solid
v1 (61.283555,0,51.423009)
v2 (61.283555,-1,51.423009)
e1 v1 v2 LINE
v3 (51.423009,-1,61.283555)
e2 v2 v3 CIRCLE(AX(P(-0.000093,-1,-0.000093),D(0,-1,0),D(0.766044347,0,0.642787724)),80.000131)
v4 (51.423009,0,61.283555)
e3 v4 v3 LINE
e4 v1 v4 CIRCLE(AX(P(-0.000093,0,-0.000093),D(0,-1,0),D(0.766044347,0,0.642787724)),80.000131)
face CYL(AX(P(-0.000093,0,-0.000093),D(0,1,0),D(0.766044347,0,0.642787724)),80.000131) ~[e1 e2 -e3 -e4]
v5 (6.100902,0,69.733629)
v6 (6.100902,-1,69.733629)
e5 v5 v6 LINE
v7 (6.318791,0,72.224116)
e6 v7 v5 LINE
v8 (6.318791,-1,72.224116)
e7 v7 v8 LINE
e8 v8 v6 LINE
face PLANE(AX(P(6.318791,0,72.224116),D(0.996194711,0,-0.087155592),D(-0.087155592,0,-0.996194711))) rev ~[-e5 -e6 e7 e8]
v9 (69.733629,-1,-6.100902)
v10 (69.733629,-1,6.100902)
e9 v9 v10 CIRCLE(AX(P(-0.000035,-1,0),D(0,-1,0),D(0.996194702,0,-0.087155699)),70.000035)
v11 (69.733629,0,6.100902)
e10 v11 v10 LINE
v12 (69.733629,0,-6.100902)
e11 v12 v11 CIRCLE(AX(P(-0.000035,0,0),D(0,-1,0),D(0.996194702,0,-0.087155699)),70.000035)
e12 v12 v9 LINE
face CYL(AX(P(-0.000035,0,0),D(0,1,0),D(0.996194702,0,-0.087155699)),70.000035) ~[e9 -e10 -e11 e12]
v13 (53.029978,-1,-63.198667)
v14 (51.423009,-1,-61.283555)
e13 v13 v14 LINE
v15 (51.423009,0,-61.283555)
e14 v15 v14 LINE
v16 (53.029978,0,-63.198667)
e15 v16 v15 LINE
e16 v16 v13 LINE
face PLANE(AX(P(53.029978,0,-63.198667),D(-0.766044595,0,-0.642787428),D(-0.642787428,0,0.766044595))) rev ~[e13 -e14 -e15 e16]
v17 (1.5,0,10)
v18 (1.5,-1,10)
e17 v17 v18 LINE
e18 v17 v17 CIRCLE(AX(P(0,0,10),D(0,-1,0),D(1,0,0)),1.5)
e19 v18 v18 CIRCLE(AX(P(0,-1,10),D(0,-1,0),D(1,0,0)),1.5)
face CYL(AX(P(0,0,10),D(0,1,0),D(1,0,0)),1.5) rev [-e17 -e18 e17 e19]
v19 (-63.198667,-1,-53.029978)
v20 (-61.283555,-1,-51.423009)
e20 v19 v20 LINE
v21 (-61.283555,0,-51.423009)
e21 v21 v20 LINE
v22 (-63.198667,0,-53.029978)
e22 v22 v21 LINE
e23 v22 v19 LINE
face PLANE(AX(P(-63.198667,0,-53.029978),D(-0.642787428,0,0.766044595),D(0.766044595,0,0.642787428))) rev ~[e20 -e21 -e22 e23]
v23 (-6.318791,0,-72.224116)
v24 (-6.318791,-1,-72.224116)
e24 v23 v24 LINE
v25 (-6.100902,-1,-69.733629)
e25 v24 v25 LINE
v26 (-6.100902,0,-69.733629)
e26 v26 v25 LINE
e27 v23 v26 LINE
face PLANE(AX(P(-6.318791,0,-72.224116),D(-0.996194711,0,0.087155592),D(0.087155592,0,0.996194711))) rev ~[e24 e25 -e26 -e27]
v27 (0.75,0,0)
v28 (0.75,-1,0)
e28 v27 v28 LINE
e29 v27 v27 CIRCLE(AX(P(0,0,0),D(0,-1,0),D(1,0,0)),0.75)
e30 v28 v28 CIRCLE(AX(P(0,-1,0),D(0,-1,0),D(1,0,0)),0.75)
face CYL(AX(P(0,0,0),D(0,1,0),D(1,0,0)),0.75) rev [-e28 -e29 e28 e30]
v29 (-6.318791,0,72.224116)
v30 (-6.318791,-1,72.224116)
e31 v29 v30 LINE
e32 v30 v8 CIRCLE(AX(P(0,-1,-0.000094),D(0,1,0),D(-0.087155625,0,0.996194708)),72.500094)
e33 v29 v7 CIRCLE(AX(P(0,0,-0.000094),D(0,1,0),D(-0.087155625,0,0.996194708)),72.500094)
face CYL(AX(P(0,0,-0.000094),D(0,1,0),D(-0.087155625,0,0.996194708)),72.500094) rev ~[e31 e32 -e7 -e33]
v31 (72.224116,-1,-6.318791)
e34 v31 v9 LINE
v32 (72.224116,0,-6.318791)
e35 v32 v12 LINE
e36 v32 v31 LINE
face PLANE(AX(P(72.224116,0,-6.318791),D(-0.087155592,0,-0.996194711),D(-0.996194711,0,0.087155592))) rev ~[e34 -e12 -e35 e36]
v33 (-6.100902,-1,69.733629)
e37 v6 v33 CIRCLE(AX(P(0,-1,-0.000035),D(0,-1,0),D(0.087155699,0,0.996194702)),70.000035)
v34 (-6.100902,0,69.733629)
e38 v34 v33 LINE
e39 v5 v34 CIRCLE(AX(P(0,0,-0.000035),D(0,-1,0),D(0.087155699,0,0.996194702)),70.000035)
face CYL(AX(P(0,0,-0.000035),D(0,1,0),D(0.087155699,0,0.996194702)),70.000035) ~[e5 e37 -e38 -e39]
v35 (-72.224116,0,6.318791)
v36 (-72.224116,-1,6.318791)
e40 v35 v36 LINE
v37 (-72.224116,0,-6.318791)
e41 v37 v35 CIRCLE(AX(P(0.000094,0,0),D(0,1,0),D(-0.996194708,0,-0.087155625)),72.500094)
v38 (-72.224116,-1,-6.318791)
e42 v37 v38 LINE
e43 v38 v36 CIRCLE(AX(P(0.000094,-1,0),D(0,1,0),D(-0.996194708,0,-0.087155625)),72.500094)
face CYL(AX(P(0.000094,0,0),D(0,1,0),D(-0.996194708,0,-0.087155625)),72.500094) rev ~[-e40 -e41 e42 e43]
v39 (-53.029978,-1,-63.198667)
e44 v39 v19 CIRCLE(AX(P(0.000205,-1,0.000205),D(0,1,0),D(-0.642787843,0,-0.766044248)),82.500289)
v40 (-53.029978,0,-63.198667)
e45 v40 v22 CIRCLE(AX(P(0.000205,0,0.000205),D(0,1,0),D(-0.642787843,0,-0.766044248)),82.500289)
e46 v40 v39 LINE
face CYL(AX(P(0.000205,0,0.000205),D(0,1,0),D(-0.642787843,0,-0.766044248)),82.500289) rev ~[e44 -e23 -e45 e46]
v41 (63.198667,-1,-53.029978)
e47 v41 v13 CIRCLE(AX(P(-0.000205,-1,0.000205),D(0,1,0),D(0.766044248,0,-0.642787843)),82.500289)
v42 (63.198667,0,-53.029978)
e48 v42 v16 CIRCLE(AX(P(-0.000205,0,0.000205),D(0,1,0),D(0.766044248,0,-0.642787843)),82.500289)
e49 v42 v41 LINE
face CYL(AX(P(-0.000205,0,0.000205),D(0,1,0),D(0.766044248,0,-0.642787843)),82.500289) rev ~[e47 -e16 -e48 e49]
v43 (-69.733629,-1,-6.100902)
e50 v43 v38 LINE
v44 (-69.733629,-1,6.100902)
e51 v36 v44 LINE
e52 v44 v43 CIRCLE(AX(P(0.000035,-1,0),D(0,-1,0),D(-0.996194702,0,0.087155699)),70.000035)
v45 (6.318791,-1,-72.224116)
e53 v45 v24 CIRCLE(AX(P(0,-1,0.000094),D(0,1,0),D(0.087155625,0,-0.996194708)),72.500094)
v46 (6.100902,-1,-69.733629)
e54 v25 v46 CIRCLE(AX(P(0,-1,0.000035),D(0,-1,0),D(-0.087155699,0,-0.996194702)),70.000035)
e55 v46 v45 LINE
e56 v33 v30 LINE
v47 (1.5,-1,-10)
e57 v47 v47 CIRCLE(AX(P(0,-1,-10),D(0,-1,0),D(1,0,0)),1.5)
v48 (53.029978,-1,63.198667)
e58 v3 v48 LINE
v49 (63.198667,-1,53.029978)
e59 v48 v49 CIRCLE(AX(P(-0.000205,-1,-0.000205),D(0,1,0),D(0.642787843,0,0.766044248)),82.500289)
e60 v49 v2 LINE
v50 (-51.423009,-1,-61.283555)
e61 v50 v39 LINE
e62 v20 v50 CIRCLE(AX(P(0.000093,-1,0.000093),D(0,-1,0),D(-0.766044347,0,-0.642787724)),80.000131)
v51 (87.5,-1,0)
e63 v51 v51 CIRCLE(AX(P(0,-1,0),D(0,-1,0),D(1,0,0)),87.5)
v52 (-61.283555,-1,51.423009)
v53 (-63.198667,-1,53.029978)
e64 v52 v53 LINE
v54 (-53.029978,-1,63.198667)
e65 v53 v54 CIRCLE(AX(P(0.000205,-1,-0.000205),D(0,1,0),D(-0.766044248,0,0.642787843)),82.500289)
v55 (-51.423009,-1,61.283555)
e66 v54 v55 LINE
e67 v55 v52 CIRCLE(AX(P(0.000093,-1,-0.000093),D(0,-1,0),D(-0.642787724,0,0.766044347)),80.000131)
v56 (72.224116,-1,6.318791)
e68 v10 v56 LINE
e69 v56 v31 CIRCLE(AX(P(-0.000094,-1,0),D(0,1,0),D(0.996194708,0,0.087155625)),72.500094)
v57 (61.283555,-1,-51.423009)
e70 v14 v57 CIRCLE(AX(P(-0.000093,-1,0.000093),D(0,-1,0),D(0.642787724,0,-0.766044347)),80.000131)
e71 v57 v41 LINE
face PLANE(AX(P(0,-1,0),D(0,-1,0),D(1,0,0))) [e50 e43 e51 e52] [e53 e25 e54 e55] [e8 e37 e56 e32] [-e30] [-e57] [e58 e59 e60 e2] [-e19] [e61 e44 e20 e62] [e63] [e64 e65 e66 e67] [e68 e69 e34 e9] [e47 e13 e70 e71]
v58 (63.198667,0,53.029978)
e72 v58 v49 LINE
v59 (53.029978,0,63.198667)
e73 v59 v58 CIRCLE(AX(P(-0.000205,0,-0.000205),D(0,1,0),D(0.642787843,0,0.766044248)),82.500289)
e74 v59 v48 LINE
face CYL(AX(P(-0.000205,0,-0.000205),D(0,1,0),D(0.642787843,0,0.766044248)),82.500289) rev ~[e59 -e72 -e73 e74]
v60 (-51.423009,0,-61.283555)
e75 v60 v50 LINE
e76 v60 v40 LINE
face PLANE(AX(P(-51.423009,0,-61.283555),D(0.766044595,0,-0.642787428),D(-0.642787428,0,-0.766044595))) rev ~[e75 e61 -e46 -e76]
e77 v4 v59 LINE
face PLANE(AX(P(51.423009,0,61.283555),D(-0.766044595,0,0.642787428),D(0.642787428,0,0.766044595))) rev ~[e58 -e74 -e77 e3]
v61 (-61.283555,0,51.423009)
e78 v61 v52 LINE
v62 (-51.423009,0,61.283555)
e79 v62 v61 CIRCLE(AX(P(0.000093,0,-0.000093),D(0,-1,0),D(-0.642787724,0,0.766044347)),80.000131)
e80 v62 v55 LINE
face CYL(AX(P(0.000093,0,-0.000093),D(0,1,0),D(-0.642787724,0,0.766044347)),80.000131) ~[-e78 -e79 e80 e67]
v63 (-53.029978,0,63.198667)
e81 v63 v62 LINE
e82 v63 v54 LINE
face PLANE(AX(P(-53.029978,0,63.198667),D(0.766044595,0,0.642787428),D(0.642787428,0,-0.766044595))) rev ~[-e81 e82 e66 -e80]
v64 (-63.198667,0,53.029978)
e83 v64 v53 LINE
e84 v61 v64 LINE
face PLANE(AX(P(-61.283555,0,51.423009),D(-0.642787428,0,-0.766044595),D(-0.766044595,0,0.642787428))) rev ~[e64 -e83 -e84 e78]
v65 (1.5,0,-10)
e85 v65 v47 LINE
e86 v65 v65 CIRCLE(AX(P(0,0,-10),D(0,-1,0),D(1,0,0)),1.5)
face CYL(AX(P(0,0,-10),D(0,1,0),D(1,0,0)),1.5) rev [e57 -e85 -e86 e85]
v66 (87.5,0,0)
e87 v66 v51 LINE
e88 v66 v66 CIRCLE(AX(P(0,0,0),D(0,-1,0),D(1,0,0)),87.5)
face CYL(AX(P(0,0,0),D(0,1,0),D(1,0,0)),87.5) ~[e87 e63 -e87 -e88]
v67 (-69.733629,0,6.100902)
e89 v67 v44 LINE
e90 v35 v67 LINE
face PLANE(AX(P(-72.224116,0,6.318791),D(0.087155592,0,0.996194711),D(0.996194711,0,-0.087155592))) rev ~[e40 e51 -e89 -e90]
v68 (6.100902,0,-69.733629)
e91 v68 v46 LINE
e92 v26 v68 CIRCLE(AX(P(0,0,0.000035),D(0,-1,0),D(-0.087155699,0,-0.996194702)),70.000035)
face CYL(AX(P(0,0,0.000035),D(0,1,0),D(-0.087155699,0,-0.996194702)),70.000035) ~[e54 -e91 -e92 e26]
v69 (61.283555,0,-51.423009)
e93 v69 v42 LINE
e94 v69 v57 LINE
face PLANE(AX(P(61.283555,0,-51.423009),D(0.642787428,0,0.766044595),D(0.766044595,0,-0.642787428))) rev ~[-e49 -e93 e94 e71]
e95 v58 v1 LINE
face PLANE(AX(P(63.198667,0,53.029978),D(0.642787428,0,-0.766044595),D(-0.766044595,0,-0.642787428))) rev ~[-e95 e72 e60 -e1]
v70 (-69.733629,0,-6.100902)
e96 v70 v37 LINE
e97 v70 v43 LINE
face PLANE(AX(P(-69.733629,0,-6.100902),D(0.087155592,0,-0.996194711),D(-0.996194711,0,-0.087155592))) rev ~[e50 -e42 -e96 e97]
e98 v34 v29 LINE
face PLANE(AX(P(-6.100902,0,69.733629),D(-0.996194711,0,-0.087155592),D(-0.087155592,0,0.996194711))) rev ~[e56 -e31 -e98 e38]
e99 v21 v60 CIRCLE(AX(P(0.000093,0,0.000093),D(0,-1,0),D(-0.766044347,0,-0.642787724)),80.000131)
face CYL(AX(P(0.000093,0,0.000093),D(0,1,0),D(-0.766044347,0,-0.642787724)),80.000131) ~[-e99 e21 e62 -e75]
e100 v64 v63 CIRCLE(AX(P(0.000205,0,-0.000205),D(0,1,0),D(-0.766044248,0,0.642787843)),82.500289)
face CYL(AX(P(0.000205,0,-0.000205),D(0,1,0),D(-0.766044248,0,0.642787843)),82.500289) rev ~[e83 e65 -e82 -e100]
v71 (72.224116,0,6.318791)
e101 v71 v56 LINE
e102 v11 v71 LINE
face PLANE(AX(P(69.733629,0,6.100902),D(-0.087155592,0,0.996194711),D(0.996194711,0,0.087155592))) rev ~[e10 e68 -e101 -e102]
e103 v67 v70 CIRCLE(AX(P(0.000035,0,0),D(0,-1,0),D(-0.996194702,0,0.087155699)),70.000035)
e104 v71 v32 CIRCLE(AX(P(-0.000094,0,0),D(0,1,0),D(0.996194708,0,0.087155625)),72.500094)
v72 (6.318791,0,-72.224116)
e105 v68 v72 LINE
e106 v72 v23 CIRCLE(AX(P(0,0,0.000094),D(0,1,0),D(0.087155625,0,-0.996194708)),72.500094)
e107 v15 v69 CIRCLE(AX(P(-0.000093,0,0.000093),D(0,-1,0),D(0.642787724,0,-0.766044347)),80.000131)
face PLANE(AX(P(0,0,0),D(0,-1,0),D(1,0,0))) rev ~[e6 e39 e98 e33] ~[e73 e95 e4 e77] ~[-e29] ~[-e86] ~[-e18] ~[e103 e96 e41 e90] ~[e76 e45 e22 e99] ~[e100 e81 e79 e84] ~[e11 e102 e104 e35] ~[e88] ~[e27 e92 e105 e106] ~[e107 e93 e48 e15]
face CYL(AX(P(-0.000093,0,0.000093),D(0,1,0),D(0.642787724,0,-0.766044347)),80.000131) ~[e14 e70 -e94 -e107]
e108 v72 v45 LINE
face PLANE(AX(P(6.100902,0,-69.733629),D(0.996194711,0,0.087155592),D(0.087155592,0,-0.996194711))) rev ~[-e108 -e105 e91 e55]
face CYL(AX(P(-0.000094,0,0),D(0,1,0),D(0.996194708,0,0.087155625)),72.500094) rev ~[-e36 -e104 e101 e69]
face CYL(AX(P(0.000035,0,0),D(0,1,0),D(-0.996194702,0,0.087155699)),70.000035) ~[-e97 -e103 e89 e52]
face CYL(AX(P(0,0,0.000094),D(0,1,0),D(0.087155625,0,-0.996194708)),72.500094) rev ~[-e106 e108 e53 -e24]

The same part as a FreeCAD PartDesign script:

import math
import FreeCAD as App
import Part
import Sketcher
from FreeCAD import Vector
Q = App.Units.Quantity

doc = App.newDocument("Part")
body = doc.addObject("PartDesign::Body", "Body")

sketch1 = doc.addObject("Sketcher::SketchObject", "Sketch")
body.addObject(sketch1)
sketch1.AttachmentSupport = (doc.XZ_Plane, [""])
sketch1.MapMode = "FlatFace"
sketch1.addGeometry(Part.Circle(Vector(0, 0, 0), Vector(0, 0, 1), 87.5), False)
sketch1.addGeometry(Part.LineSegment(Vector(-51.423009, -61.283555, 0), Vector(-53.029978, -63.198667, 0)), False)
sketch1.addGeometry(Part.ArcOfCircle(Part.Circle(Vector(0.000205, 0.000205, 0), Vector(0, 0, 1), 82.500289), math.radians(-139.999983), math.radians(-130.000017)), False)
sketch1.addGeometry(Part.LineSegment(Vector(-63.198667, -53.029978, 0), Vector(-61.283555, -51.423009, 0)), False)
sketch1.addGeometry(Part.ArcOfCircle(Part.Circle(Vector(0.000093, 0.000093, 0), Vector(0, 0, 1), 80.000131), math.radians(-139.999991), math.radians(-130.000009)), False)
sketch1.addGeometry(Part.ArcOfCircle(Part.Circle(Vector(0, 0.000094, 0), Vector(0, 0, 1), 72.500094), math.radians(-94.999993), math.radians(-85.000007)), False)
sketch1.addGeometry(Part.LineSegment(Vector(-6.318791, -72.224116, 0), Vector(-6.100902, -69.733629, 0)), False)
sketch1.addGeometry(Part.ArcOfCircle(Part.Circle(Vector(0, 0.000035, 0), Vector(0, 0, 1), 70.000035), math.radians(-94.999997), math.radians(-85.000003)), False)
sketch1.addGeometry(Part.LineSegment(Vector(6.100902, -69.733629, 0), Vector(6.318791, -72.224116, 0)), False)
sketch1.addGeometry(Part.ArcOfCircle(Part.Circle(Vector(-0.000205, 0.000205, 0), Vector(0, 0, 1), 82.500289), math.radians(-49.999983), math.radians(-40.000017)), False)
sketch1.addGeometry(Part.LineSegment(Vector(53.029978, -63.198667, 0), Vector(51.423009, -61.283555, 0)), False)
sketch1.addGeometry(Part.ArcOfCircle(Part.Circle(Vector(-0.000093, 0.000093, 0), Vector(0, 0, 1), 80.000131), math.radians(-49.999991), math.radians(-40.000009)), False)
sketch1.addGeometry(Part.LineSegment(Vector(61.283555, -51.423009, 0), Vector(63.198667, -53.029978, 0)), False)
sketch1.addGeometry(Part.Circle(Vector(0, -10, 0), Vector(0, 0, 1), 1.5), False)
sketch1.addGeometry(Part.LineSegment(Vector(-69.733629, -6.100902, 0), Vector(-72.224116, -6.318791, 0)), False)
sketch1.addGeometry(Part.ArcOfCircle(Part.Circle(Vector(0.000094, 0, 0), Vector(0, 0, 1), 72.500094), math.radians(175.000007), math.radians(184.999993)), False)
sketch1.addGeometry(Part.LineSegment(Vector(-72.224116, 6.318791, 0), Vector(-69.733629, 6.100902, 0)), False)
sketch1.addGeometry(Part.ArcOfCircle(Part.Circle(Vector(0.000035, 0, 0), Vector(0, 0, 1), 70.000035), math.radians(175.000003), math.radians(184.999997)), False)
sketch1.addGeometry(Part.LineSegment(Vector(-61.283555, 51.423009, 0), Vector(-63.198667, 53.029978, 0)), False)
sketch1.addGeometry(Part.ArcOfCircle(Part.Circle(Vector(0.000205, -0.000205, 0), Vector(0, 0, 1), 82.500289), math.radians(130.000017), math.radians(139.999983)), False)
sketch1.addGeometry(Part.LineSegment(Vector(-53.029978, 63.198667, 0), Vector(-51.423009, 61.283555, 0)), False)
sketch1.addGeometry(Part.ArcOfCircle(Part.Circle(Vector(0.000093, -0.000093, 0), Vector(0, 0, 1), 80.000131), math.radians(130.000009), math.radians(139.999991)), False)
sketch1.addGeometry(Part.Circle(Vector(0, 0, 0), Vector(0, 0, 1), 0.75), False)
sketch1.addGeometry(Part.Circle(Vector(0, 10, 0), Vector(0, 0, 1), 1.5), False)
sketch1.addGeometry(Part.LineSegment(Vector(69.733629, 6.100902, 0), Vector(72.224116, 6.318791, 0)), False)
sketch1.addGeometry(Part.ArcOfCircle(Part.Circle(Vector(-0.000094, 0, 0), Vector(0, 0, 1), 72.500094), math.radians(-4.999993), math.radians(4.999993)), False)
sketch1.addGeometry(Part.LineSegment(Vector(72.224116, -6.318791, 0), Vector(69.733629, -6.100902, 0)), False)
sketch1.addGeometry(Part.ArcOfCircle(Part.Circle(Vector(-0.000035, 0, 0), Vector(0, 0, 1), 70.000035), math.radians(-4.999997), math.radians(4.999997)), False)
sketch1.addGeometry(Part.LineSegment(Vector(-6.100902, 69.733629, 0), Vector(-6.318791, 72.224116, 0)), False)
sketch1.addGeometry(Part.ArcOfCircle(Part.Circle(Vector(0, -0.000094, 0), Vector(0, 0, 1), 72.500094), math.radians(85.000007), math.radians(94.999993)), False)
sketch1.addGeometry(Part.LineSegment(Vector(6.318791, 72.224116, 0), Vector(6.100902, 69.733629, 0)), False)
sketch1.addGeometry(Part.ArcOfCircle(Part.Circle(Vector(0, -0.000035, 0), Vector(0, 0, 1), 70.000035), math.radians(85.000003), math.radians(94.999997)), False)
sketch1.addGeometry(Part.LineSegment(Vector(51.423009, 61.283555, 0), Vector(53.029978, 63.198667, 0)), False)
sketch1.addGeometry(Part.ArcOfCircle(Part.Circle(Vector(-0.000205, -0.000205, 0), Vector(0, 0, 1), 82.500289), math.radians(40.000017), math.radians(49.999983)), False)
sketch1.addGeometry(Part.LineSegment(Vector(63.198667, 53.029978, 0), Vector(61.283555, 51.423009, 0)), False)
sketch1.addGeometry(Part.ArcOfCircle(Part.Circle(Vector(-0.000093, -0.000093, 0), Vector(0, 0, 1), 80.000131), math.radians(40.000009), math.radians(49.999991)), False)
sketch1.addConstraint(Sketcher.Constraint("Coincident", 1, 2, 2, 2))
sketch1.addConstraint(Sketcher.Constraint("Coincident", 2, 1, 3, 1))
sketch1.addConstraint(Sketcher.Constraint("Coincident", 3, 2, 4, 1))
sketch1.addConstraint(Sketcher.Constraint("Coincident", 4, 2, 1, 1))
sketch1.addConstraint(Sketcher.Constraint("Coincident", 5, 1, 6, 1))
sketch1.addConstraint(Sketcher.Constraint("Coincident", 6, 2, 7, 1))
sketch1.addConstraint(Sketcher.Constraint("Coincident", 7, 2, 8, 1))
sketch1.addConstraint(Sketcher.Constraint("Coincident", 8, 2, 5, 2))
sketch1.addConstraint(Sketcher.Constraint("Coincident", 9, 1, 10, 1))
sketch1.addConstraint(Sketcher.Constraint("Coincident", 10, 2, 11, 1))
sketch1.addConstraint(Sketcher.Constraint("Coincident", 11, 2, 12, 1))
sketch1.addConstraint(Sketcher.Constraint("Coincident", 12, 2, 9, 2))
sketch1.addConstraint(Sketcher.Constraint("Coincident", 14, 2, 15, 2))
sketch1.addConstraint(Sketcher.Constraint("Coincident", 15, 1, 16, 1))
sketch1.addConstraint(Sketcher.Constraint("Coincident", 16, 2, 17, 1))
sketch1.addConstraint(Sketcher.Constraint("Coincident", 17, 2, 14, 1))
sketch1.addConstraint(Sketcher.Constraint("Coincident", 18, 2, 19, 2))
sketch1.addConstraint(Sketcher.Constraint("Coincident", 19, 1, 20, 1))
sketch1.addConstraint(Sketcher.Constraint("Coincident", 20, 2, 21, 1))
sketch1.addConstraint(Sketcher.Constraint("Coincident", 21, 2, 18, 1))
sketch1.addConstraint(Sketcher.Constraint("Coincident", 24, 2, 25, 2))
sketch1.addConstraint(Sketcher.Constraint("Coincident", 25, 1, 26, 1))
sketch1.addConstraint(Sketcher.Constraint("Coincident", 26, 2, 27, 1))
sketch1.addConstraint(Sketcher.Constraint("Coincident", 27, 2, 24, 1))
sketch1.addConstraint(Sketcher.Constraint("Coincident", 28, 2, 29, 2))
sketch1.addConstraint(Sketcher.Constraint("Coincident", 29, 1, 30, 1))
sketch1.addConstraint(Sketcher.Constraint("Coincident", 30, 2, 31, 1))
sketch1.addConstraint(Sketcher.Constraint("Coincident", 31, 2, 28, 1))
sketch1.addConstraint(Sketcher.Constraint("Coincident", 32, 2, 33, 2))
sketch1.addConstraint(Sketcher.Constraint("Coincident", 33, 1, 34, 1))
sketch1.addConstraint(Sketcher.Constraint("Coincident", 34, 2, 35, 1))
sketch1.addConstraint(Sketcher.Constraint("Coincident", 35, 2, 32, 1))
sketch1.addConstraint(Sketcher.Constraint("Coincident", 0, 3, -1, 1))
sketch1.addConstraint(Sketcher.Constraint("Coincident", 22, 3, -1, 1))
sketch1.addConstraint(Sketcher.Constraint("Equal", 2, 9))
sketch1.addConstraint(Sketcher.Constraint("Equal", 4, 11))
sketch1.addConstraint(Sketcher.Constraint("Equal", 5, 15))
sketch1.addConstraint(Sketcher.Constraint("Equal", 7, 17))
sketch1.addConstraint(Sketcher.Constraint("Equal", 9, 19))
sketch1.addConstraint(Sketcher.Constraint("Equal", 11, 21))
sketch1.addConstraint(Sketcher.Constraint("Equal", 13, 23))
sketch1.addConstraint(Sketcher.Constraint("Equal", 15, 25))
sketch1.addConstraint(Sketcher.Constraint("Equal", 17, 27))
sketch1.addConstraint(Sketcher.Constraint("Equal", 25, 29))
sketch1.addConstraint(Sketcher.Constraint("Equal", 27, 31))
sketch1.addConstraint(Sketcher.Constraint("Equal", 19, 33))
sketch1.addConstraint(Sketcher.Constraint("Equal", 21, 35))
sketch1.addConstraint(Sketcher.Constraint("Symmetric", 9, 3, 19, 3, -1, 1))
sketch1.addConstraint(Sketcher.Constraint("Symmetric", 11, 3, 21, 3, -1, 1))
sketch1.addConstraint(Sketcher.Constraint("Symmetric", 13, 3, 23, 3, -1, 1))
sketch1.addConstraint(Sketcher.Constraint("Symmetric", 15, 3, 25, 3, -1, 1))
sketch1.addConstraint(Sketcher.Constraint("Symmetric", 17, 3, 27, 3, -1, 1))
sketch1.addConstraint(Sketcher.Constraint("Symmetric", 5, 3, 29, 3, -1, 1))
sketch1.addConstraint(Sketcher.Constraint("Symmetric", 7, 3, 31, 3, -1, 1))
sketch1.addConstraint(Sketcher.Constraint("Symmetric", 2, 3, 33, 3, -1, 1))
sketch1.addConstraint(Sketcher.Constraint("Symmetric", 4, 3, 35, 3, -1, 1))
sketch1.addConstraint(Sketcher.Constraint("Symmetric", 2, 3, 9, 3, -2))
sketch1.addConstraint(Sketcher.Constraint("Symmetric", 4, 3, 11, 3, -2))
sketch1.addConstraint(Sketcher.Constraint("Symmetric", 6, 2, 7, 2, -2))
sketch1.addConstraint(Sketcher.Constraint("Symmetric", 5, 1, 8, 2, -2))
sketch1.addConstraint(Sketcher.Constraint("Symmetric", 15, 1, 24, 2, -2))
sketch1.addConstraint(Sketcher.Constraint("Symmetric", 17, 2, 26, 2, -2))
sketch1.addConstraint(Sketcher.Constraint("PointOnObject", 13, 3, -2))
sketch1.addConstraint(Sketcher.Constraint("Perpendicular", 3, 10))
sketch1.addConstraint(Sketcher.Constraint("Perpendicular", 1, 12))
sketch1.addConstraint(Sketcher.Constraint("Perpendicular", 8, 14))
sketch1.addConstraint(Sketcher.Constraint("Perpendicular", 6, 16))
sketch1.addConstraint(Sketcher.Constraint("Parallel", 12, 18))
sketch1.addConstraint(Sketcher.Constraint("Parallel", 10, 20))
sketch1.addConstraint(Sketcher.Constraint("Parallel", 14, 24))
sketch1.addConstraint(Sketcher.Constraint("Parallel", 16, 26))
sketch1.addConstraint(Sketcher.Constraint("Perpendicular", 24, 28))
sketch1.addConstraint(Sketcher.Constraint("Perpendicular", 26, 30))
sketch1.addConstraint(Sketcher.Constraint("Perpendicular", 18, 32))
sketch1.addConstraint(Sketcher.Constraint("Perpendicular", 20, 34))
sketch1.addConstraint(Sketcher.Constraint("Horizontal", 4, 3, 5, 3))
sketch1.addConstraint(Sketcher.Constraint("Horizontal", 1, 2, 9, 1))
sketch1.addConstraint(Sketcher.Constraint("Horizontal", 4, 2, 10, 2))
sketch1.addConstraint(Sketcher.Constraint("Horizontal", 3, 2, 11, 2))
sketch1.addConstraint(Sketcher.Constraint("Horizontal", 28, 2, 29, 1))
sketch1.addConstraint(Sketcher.Constraint("Horizontal", 19, 1, 32, 2))
sketch1.addConstraint(Sketcher.Constraint("Horizontal", 18, 2, 33, 1))
sketch1.addConstraint(Sketcher.Constraint("Vertical", 4, 3, 15, 3))
sketch1.addConstraint(Sketcher.Constraint("Vertical", 14, 2, 15, 1))
sketch1.addConstraint(Sketcher.Constraint("Vertical", 2, 1, 18, 2))
sketch1.addConstraint(Sketcher.Constraint("Vertical", 1, 2, 19, 1))
sketch1.addConstraint(Sketcher.Constraint("Vertical", 5, 1, 28, 2))
sketch1.addConstraint(Sketcher.Constraint("Equal", 1, 3))
sketch1.addConstraint(Sketcher.Constraint("Equal", 3, 6))
sketch1.addConstraint(Sketcher.Constraint("Equal", 12, 14))
sketch1.addConstraint(Sketcher.Constraint("Diameter", 0, 175.0))
sketch1.addConstraint(Sketcher.Constraint("Diameter", 13, 3.0))
sketch1.addConstraint(Sketcher.Constraint("Diameter", 22, 1.5))
sketch1.addConstraint(Sketcher.Constraint("Angle", 1, Q("-129.999986 deg")))
sketch1.addConstraint(Sketcher.Constraint("Angle", 6, Q("85.000009 deg")))
sketch1.addConstraint(Sketcher.Constraint("DistanceY", 13, 3, -1, 1, 10.0))
sketch1.addConstraint(Sketcher.Constraint("Distance", 1, 2.500001))
sketch1.addConstraint(Sketcher.Constraint("Radius", 2, 82.500289))
sketch1.addConstraint(Sketcher.Constraint("Radius", 4, 80.000131))
sketch1.addConstraint(Sketcher.Constraint("Radius", 5, 72.500094))
sketch1.addConstraint(Sketcher.Constraint("Radius", 7, 70.000035))
sketch1.addConstraint(Sketcher.Constraint("DistanceX", 6, 2, -1, 1, 6.100902))
sketch1.addConstraint(Sketcher.Constraint("DistanceY", -1, 1, 16, 2, 6.100902))
sketch1.addConstraint(Sketcher.Constraint("DistanceX", 4, 2, 8, 2, 57.7418))
sketch1.addConstraint(Sketcher.Constraint("DistanceY", 3, 2, 15, 1, 57.7418))
sketch1.addConstraint(Sketcher.Constraint("DistanceY", 6, 2, -1, 1, 69.733629))
sketch1.addConstraint(Sketcher.Constraint("DistanceX", 16, 2, -1, 1, 69.733629))
pad1 = doc.addObject("PartDesign::Pad", "Pad")
body.addObject(pad1)
pad1.Profile = sketch1
pad1.Length = 1

doc.recompute()
